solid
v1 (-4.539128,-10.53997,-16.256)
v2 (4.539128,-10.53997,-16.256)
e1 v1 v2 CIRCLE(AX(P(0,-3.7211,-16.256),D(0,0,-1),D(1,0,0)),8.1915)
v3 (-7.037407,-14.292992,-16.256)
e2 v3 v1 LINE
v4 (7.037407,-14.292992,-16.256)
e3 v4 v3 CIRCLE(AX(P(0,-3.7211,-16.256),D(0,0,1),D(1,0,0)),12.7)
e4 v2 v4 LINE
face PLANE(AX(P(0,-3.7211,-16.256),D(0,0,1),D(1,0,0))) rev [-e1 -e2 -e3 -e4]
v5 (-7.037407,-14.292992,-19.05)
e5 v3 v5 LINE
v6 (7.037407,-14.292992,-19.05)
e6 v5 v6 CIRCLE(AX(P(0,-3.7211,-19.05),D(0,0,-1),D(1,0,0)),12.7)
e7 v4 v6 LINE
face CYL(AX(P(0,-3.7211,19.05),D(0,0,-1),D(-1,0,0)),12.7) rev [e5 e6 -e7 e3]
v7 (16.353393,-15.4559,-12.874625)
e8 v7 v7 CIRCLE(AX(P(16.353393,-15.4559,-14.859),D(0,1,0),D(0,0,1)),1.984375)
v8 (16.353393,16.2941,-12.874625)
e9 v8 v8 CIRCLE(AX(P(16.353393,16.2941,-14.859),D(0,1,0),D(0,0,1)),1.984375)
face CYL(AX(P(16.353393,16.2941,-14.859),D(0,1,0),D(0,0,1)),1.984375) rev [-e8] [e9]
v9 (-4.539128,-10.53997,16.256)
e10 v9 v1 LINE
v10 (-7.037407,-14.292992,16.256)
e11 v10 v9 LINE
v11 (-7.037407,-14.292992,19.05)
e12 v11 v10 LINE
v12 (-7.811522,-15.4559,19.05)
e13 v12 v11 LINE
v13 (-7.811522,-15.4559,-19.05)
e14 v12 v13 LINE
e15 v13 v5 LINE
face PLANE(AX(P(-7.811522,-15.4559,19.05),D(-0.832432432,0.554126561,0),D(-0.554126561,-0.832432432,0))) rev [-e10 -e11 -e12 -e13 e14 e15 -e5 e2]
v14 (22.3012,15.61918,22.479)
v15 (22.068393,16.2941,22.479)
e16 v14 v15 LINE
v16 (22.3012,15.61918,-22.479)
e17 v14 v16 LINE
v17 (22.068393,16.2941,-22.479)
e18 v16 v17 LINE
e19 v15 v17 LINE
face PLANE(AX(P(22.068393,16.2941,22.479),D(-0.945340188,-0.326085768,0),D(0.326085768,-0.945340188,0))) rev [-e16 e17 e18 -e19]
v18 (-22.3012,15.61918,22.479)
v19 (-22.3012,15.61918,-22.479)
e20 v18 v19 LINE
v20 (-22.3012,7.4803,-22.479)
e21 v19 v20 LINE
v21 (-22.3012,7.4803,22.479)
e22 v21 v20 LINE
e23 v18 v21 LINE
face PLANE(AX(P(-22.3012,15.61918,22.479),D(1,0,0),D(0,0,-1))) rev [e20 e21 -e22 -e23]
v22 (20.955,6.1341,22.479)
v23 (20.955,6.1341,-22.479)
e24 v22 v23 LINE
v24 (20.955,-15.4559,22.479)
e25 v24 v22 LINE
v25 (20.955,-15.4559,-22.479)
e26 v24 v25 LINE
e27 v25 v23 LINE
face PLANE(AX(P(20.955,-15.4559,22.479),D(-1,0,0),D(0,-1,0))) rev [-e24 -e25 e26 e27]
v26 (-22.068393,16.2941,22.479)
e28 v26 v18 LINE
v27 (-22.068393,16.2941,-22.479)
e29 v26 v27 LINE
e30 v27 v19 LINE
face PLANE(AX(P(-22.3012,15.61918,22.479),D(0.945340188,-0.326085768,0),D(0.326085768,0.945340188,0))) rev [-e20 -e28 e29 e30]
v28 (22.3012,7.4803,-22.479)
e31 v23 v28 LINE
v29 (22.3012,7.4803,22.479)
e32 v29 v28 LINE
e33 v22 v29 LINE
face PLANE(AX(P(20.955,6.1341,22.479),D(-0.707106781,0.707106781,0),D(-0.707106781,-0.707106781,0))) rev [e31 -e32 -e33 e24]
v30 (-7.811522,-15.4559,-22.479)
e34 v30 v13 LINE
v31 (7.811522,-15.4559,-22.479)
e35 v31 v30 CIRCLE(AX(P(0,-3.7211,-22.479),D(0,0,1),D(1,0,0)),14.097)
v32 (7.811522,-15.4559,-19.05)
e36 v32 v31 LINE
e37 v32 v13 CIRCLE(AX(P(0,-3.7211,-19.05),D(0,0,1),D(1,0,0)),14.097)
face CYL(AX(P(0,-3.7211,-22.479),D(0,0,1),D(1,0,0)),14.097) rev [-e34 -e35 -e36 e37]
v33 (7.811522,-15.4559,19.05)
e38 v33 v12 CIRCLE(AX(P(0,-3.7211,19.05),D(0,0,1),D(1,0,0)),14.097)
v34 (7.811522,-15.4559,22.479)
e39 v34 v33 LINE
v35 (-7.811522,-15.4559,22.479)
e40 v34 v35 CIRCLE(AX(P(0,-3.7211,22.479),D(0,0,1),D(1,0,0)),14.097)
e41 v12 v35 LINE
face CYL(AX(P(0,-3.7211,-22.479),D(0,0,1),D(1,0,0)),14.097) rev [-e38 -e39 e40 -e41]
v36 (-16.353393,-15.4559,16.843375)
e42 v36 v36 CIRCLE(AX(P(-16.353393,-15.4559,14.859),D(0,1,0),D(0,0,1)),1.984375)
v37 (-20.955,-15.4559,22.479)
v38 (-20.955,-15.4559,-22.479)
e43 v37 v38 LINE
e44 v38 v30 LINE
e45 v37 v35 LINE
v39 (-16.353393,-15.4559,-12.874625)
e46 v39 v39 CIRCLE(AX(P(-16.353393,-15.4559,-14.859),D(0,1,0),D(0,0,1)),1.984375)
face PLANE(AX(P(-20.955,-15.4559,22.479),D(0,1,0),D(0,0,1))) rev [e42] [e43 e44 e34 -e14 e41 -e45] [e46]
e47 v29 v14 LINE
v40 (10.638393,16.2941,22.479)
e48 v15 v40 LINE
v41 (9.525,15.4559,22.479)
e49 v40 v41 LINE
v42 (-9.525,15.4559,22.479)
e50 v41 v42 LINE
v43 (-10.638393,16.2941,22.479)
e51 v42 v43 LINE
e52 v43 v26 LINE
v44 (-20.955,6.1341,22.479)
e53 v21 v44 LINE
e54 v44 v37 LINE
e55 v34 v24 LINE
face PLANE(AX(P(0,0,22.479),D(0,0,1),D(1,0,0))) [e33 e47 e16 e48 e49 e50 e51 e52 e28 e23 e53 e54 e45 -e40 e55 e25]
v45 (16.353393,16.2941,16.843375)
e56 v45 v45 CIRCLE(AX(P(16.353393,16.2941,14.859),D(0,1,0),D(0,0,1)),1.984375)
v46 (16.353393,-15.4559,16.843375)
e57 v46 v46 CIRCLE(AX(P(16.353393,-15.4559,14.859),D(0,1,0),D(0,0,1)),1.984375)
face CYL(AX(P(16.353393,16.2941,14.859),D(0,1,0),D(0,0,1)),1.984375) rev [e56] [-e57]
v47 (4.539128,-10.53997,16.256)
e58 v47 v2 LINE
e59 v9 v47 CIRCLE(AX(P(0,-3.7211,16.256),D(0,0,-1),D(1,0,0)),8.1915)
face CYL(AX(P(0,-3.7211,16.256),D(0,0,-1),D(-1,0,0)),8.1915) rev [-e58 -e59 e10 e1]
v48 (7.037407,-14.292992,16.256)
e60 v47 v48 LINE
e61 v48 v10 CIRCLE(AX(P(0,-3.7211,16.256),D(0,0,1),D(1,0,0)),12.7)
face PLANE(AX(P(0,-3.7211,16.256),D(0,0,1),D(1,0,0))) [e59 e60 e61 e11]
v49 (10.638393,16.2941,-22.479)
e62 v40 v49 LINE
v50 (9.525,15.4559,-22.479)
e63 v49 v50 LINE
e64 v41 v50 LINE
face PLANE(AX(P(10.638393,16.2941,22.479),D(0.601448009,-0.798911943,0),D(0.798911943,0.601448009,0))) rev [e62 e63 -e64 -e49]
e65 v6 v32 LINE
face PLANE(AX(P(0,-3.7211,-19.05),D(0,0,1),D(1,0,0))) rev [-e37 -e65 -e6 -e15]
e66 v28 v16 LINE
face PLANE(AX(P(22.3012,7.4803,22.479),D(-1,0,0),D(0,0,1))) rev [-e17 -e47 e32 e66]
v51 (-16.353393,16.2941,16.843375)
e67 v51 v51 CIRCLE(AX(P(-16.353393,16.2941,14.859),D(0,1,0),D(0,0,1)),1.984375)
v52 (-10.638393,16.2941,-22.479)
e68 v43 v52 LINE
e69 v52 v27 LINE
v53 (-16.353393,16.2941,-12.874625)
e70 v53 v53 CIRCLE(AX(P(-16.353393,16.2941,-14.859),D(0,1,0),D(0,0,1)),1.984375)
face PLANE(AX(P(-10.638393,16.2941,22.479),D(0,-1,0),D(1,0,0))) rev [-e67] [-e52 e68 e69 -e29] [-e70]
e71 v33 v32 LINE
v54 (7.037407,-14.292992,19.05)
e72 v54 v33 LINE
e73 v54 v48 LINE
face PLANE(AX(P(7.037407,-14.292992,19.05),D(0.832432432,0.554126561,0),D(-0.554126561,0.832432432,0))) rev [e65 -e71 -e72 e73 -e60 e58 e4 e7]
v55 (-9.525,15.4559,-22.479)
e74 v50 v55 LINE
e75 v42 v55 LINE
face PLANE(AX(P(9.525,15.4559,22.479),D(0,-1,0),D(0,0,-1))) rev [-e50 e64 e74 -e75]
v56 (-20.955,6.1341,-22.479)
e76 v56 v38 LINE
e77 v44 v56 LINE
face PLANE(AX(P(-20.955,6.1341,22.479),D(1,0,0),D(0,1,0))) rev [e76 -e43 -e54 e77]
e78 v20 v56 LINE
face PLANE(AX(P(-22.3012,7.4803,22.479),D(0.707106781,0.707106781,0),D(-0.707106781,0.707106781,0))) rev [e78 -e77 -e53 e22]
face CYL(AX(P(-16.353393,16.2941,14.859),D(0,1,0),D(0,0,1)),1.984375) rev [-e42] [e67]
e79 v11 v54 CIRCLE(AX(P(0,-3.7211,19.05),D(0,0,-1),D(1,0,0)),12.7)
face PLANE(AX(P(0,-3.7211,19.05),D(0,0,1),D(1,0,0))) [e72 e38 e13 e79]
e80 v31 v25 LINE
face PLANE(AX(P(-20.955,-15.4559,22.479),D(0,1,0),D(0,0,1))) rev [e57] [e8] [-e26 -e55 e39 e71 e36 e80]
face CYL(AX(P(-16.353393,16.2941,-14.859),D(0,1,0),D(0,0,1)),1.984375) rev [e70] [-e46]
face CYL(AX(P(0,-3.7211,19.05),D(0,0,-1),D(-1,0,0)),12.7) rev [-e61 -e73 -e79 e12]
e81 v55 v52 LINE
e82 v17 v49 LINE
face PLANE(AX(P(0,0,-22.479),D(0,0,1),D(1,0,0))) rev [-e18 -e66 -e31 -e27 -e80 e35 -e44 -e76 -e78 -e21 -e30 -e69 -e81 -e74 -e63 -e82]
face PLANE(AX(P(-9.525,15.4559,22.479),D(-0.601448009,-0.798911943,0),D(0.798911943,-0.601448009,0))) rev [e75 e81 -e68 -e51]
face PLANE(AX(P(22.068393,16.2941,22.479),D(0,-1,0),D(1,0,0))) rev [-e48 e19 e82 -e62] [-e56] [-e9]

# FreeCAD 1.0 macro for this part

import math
import FreeCAD as App
import Part
import Sketcher

V = App.Vector
Q = App.Units.Quantity


def add_polygon(sketch, points):
    """Adds a closed chain of lines whose ends are joined by coincident constraints."""
    first, n = sketch.GeometryCount, len(points)
    for a, b in zip(points, points[1:] + points[:1]):
        sketch.addGeometry(Part.LineSegment(App.Vector(*a, 0), App.Vector(*b, 0)), False)
    for i in range(n):
        sketch.addConstraint(Sketcher.Constraint("Coincident", first + i, 2, first + (i + 1) % n, 1))

doc = App.newDocument("Part")
params = doc.addObject("Spreadsheet::Sheet", "Params")
for row, (alias, value) in enumerate([
    ("sketch1_width", "0.45 in"),
    ("sketch1_width2", "0.75 in"),
    ("sketch1_width3", "1.65 in"),
    ("sketch1_height", "0.85 in"),
    ("pad1_length", "1.77 in"),
    ("sketch2_diameter", "0.15625 in"),
    ("hole_diameter", "0.15625 in"),
    ("hole_depth", "1.25 in"),
    ("sketch3_diameter", "1.11 in"),
    ("sketch4_radius", "0.5 in"),
    ("sketch4_radius2", "0.555 in"),
    ("pad2_length", "1.5 in"),
    ("sketch5_radius", "0.5 in"),
    ("pad3_length", "1.28 in"),
], start=1):
    params.set(f"A{row}", alias)
    params.set(f"B{row}", "=" + value)
    params.setAlias(f"B{row}", alias)

body = doc.addObject("PartDesign::Body", "Body")

# Sketch on XY plane
sketch1 = body.newObject("Sketcher::SketchObject", "Sketch")
sketch1.AttachmentSupport = (doc.getObject("XY_Plane"), [""])
sketch1.MapMode = "FlatFace"
add_polygon(sketch1, [(22.1, 16.3), (10.6, 16.3), (9.5, 15.5), (-9.5, 15.5), (-10.6, 16.3), (-22.1, 16.3), (-22.3, 15.6), (-22.3, 7.5), (-21, 6.1), (-21, -15.5), (21, -15.5), (21, 6.1), (22.3, 7.5), (22.3, 15.6)])  # lines 0-13
sketch1.addConstraint([
    Sketcher.Constraint("Horizontal", 0),
    Sketcher.Constraint("Horizontal", 2),
    Sketcher.Constraint("Horizontal", 4),
    Sketcher.Constraint("Vertical", 6),
    Sketcher.Constraint("Vertical", 8),
    Sketcher.Constraint("Horizontal", 9),
    Sketcher.Constraint("Vertical", 10),
    Sketcher.Constraint("Vertical", 12),
    Sketcher.Constraint("Symmetric", 0, 2, 3, 2, -2),
    Sketcher.Constraint("Symmetric", 7, 2, 10, 2, -2),
    Sketcher.Constraint("Symmetric", 6, 2, 11, 2, -2),
    Sketcher.Constraint("Perpendicular", 7, 11),
    Sketcher.Constraint("Horizontal", 5, 2, 12, 2),
    Sketcher.Constraint("Equal", 0, 4),
    Sketcher.Constraint("Equal", 1, 3),
    Sketcher.Constraint("DistanceX", 0, 2, 0, 1, Q("0.45 in")),
    Sketcher.Constraint("DistanceX", 2, 2, 2, 1, Q("0.75 in")),
    Sketcher.Constraint("DistanceX", 9, 1, 9, 2, Q("1.65 in")),
    Sketcher.Constraint("DistanceY", 8, 2, 8, 1, Q("0.85 in")),
    Sketcher.Constraint("DistanceY", 7, 2, 4, 2, Q("0.4 in")),
    Sketcher.Constraint("DistanceX", 5, 2, -1, 1, Q("0.878 in")),
    Sketcher.Constraint("DistanceY", 1, 2, 0, 2, Q("0.033 in")),
    Sketcher.Constraint("DistanceY", -1, 1, 0, 2, Q("0.6415 in")),
    Sketcher.Constraint("DistanceY", 6, 2, 6, 1, Q("8.13888 mm")),
    Sketcher.Constraint("Distance", 1, Q("1.393637 mm")),
])
sketch1.setExpression("Constraints[29]", "Params.sketch1_width")
sketch1.setExpression("Constraints[30]", "Params.sketch1_width2")
sketch1.setExpression("Constraints[31]", "Params.sketch1_width3")
sketch1.setExpression("Constraints[32]", "Params.sketch1_height")
pad1 = body.newObject("PartDesign::Pad", "Pad")
pad1.Profile = sketch1
pad1.setExpression("Length", "Params.pad1_length")
pad1.Midplane = True

# Sketch on XZ plane
sketch2 = body.newObject("Sketcher::SketchObject", "Sketch001")
sketch2.AttachmentSupport = (doc.getObject("XZ_Plane"), [""])
sketch2.MapMode = "FlatFace"
sketch2.AttachmentOffset = App.Placement(V(0, 0, -0.6415 * 25.4), App.Rotation())
sketch2.addGeometry([
    Part.Circle(V(-16.4, -14.9, 0), V(0, 0, 1), 2),
    Part.Circle(V(-16.4, 14.9, 0), V(0, 0, 1), 2),
    Part.Circle(V(16.4, 14.9, 0), V(0, 0, 1), 2),
    Part.Circle(V(16.4, -14.9, 0), V(0, 0, 1), 2),
], False)
sketch2.addConstraint([
    Sketcher.Constraint("Equal", 0, 1),
    Sketcher.Constraint("Equal", 1, 2),
    Sketcher.Constraint("Equal", 2, 3),
    Sketcher.Constraint("Symmetric", 0, 3, 2, 3, -1, 1),
    Sketcher.Constraint("Symmetric", 1, 3, 3, 3, -1, 1),
    Sketcher.Constraint("Symmetric", 1, 3, 2, 3, -2),
    Sketcher.Constraint("Diameter", 0, Q("0.15625 in")),
    Sketcher.Constraint("DistanceY", 0, 3, 1, 3, Q("1.17 in")),
    Sketcher.Constraint("DistanceX", 0, 3, -1, 1, Q("16.353393 mm")),
])
sketch2.setExpression("Constraints[6]", "Params.sketch2_diameter")
doc.recompute()
hole = body.newObject("PartDesign::Hole", "Hole")
hole.Profile = sketch2
hole.ThreadType = "None"
hole.setExpression("Diameter", "Params.hole_diameter")
hole.DepthType = "Dimension"
hole.setExpression("Depth", "Params.hole_depth")
hole.DrillPoint = "Flat"
hole.Reversed = True

# Sketch on XY plane
sketch3 = body.newObject("Sketcher::SketchObject", "Sketch002")
sketch3.AttachmentSupport = (doc.getObject("XY_Plane"), [""])
sketch3.MapMode = "FlatFace"
sketch3.AttachmentOffset = App.Placement(V(0, 0, 0.885 * 25.4), App.Rotation())
sketch3.addGeometry(Part.Circle(V(0, -4, 0), V(0, 0, 1), 14), False)
sketch3.addConstraint([
    Sketcher.Constraint("PointOnObject", 0, 3, -2),
    Sketcher.Constraint("Diameter", 0, Q("1.11 in")),
    Sketcher.Constraint("DistanceY", 0, 3, -1, 1, Q("0.1465 in")),
])
sketch3.setExpression("Constraints[1]", "Params.sketch3_diameter")
pocket1 = body.newObject("PartDesign::Pocket", "Pocket")
pocket1.Profile = sketch3
pocket1.Type = "ThroughAll"
pocket1.Midplane = True

# Sketch on XY plane
sketch4 = body.newObject("Sketcher::SketchObject", "Sketch003")
sketch4.AttachmentSupport = (doc.getObject("XY_Plane"), [""])
sketch4.MapMode = "FlatFace"
sketch4.addGeometry([
    Part.LineSegment(V(-7.8, -15.5, 0), V(-7, -14.3, 0)),
    Part.ArcOfCircle(Part.Circle(V(0, -3.7, 0), V(0, 0, 1), 12.7), math.radians(-56), math.radians(236)),
    Part.LineSegment(V(7, -14.3, 0), V(7.8, -15.5, 0)),
    Part.ArcOfCircle(Part.Circle(V(0, -3.7, 0), V(0, 0, 1), 14.1), math.radians(-56), math.radians(236)),
], False)
sketch4.addConstraint([
    Sketcher.Constraint("Coincident", 0, 2, 1, 2),
    Sketcher.Constraint("Coincident", 1, 1, 2, 1),
    Sketcher.Constraint("Coincident", 2, 2, 3, 1),
    Sketcher.Constraint("Coincident", 3, 2, 0, 1),
    Sketcher.Constraint("Coincident", 3, 3, 1, 3),
    Sketcher.Constraint("Symmetric", 0, 2, 1, 1, -2),
    Sketcher.Constraint("Horizontal", 2, 2, 3, 2),
    Sketcher.Constraint("Radius", 1, Q("0.5 in")),
    Sketcher.Constraint("Radius", 3, Q("0.555 in")),
    Sketcher.Constraint("DistanceY", 2, 2, 1, 3, Q("0.462 in")),
    Sketcher.Constraint("DistanceY", 1, 3, -1, 1, Q("0.1465 in")),
    Sketcher.Constraint("DistanceY", 0, 2, -1, 1, Q("14.292992 mm")),
])
sketch4.setExpression("Constraints[7]", "Params.sketch4_radius")
sketch4.setExpression("Constraints[8]", "Params.sketch4_radius2")
pad2 = body.newObject("PartDesign::Pad", "Pad001")
pad2.Profile = sketch4
pad2.setExpression("Length", "Params.pad2_length")
pad2.Midplane = True

# Sketch on XY plane
sketch5 = body.newObject("Sketcher::SketchObject", "Sketch004")
sketch5.AttachmentSupport = (doc.getObject("XY_Plane"), [""])
sketch5.MapMode = "FlatFace"
sketch5.addGeometry([
    Part.LineSegment(V(-7, -14.3, 0), V(-4.5, -10.5, 0)),
    Part.ArcOfCircle(Part.Circle(V(0, -3.7, 0), V(0, 0, 1), 8.2), math.radians(-56), math.radians(236)),
    Part.LineSegment(V(4.5, -10.5, 0), V(7, -14.3, 0)),
    Part.ArcOfCircle(Part.Circle(V(0, -3.7, 0), V(0, 0, 1), 12.7), math.radians(-56), math.radians(236)),
], False)
sketch5.addConstraint([
    Sketcher.Constraint("Coincident", 0, 2, 1, 2),
    Sketcher.Constraint("Coincident", 1, 1, 2, 1),
    Sketcher.Constraint("Coincident", 2, 2, 3, 1),
    Sketcher.Constraint("Coincident", 3, 2, 0, 1),
    Sketcher.Constraint("Coincident", 3, 3, 1, 3),
    Sketcher.Constraint("Symmetric", 0, 2, 1, 1, -2),
    Sketcher.Constraint("Horizontal", 2, 2, 3, 2),
    Sketcher.Constraint("Radius", 3, Q("0.5 in")),
    Sketcher.Constraint("Radius", 1, Q("0.3225 in")),
    Sketcher.Constraint("DistanceY", 1, 3, -1, 1, Q("0.1465 in")),
    Sketcher.Constraint("DistanceY", 0, 2, -1, 1, Q("10.53997 mm")),
    Sketcher.Constraint("DistanceY", 2, 2, -1, 1, Q("14.292992 mm")),
])
sketch5.setExpression("Constraints[7]", "Params.sketch5_radius")
pad3 = body.newObject("PartDesign::Pad", "Pad002")
pad3.Profile = sketch5
pad3.setExpression("Length", "Params.pad3_length")
pad3.Midplane = True

doc.recompute()
